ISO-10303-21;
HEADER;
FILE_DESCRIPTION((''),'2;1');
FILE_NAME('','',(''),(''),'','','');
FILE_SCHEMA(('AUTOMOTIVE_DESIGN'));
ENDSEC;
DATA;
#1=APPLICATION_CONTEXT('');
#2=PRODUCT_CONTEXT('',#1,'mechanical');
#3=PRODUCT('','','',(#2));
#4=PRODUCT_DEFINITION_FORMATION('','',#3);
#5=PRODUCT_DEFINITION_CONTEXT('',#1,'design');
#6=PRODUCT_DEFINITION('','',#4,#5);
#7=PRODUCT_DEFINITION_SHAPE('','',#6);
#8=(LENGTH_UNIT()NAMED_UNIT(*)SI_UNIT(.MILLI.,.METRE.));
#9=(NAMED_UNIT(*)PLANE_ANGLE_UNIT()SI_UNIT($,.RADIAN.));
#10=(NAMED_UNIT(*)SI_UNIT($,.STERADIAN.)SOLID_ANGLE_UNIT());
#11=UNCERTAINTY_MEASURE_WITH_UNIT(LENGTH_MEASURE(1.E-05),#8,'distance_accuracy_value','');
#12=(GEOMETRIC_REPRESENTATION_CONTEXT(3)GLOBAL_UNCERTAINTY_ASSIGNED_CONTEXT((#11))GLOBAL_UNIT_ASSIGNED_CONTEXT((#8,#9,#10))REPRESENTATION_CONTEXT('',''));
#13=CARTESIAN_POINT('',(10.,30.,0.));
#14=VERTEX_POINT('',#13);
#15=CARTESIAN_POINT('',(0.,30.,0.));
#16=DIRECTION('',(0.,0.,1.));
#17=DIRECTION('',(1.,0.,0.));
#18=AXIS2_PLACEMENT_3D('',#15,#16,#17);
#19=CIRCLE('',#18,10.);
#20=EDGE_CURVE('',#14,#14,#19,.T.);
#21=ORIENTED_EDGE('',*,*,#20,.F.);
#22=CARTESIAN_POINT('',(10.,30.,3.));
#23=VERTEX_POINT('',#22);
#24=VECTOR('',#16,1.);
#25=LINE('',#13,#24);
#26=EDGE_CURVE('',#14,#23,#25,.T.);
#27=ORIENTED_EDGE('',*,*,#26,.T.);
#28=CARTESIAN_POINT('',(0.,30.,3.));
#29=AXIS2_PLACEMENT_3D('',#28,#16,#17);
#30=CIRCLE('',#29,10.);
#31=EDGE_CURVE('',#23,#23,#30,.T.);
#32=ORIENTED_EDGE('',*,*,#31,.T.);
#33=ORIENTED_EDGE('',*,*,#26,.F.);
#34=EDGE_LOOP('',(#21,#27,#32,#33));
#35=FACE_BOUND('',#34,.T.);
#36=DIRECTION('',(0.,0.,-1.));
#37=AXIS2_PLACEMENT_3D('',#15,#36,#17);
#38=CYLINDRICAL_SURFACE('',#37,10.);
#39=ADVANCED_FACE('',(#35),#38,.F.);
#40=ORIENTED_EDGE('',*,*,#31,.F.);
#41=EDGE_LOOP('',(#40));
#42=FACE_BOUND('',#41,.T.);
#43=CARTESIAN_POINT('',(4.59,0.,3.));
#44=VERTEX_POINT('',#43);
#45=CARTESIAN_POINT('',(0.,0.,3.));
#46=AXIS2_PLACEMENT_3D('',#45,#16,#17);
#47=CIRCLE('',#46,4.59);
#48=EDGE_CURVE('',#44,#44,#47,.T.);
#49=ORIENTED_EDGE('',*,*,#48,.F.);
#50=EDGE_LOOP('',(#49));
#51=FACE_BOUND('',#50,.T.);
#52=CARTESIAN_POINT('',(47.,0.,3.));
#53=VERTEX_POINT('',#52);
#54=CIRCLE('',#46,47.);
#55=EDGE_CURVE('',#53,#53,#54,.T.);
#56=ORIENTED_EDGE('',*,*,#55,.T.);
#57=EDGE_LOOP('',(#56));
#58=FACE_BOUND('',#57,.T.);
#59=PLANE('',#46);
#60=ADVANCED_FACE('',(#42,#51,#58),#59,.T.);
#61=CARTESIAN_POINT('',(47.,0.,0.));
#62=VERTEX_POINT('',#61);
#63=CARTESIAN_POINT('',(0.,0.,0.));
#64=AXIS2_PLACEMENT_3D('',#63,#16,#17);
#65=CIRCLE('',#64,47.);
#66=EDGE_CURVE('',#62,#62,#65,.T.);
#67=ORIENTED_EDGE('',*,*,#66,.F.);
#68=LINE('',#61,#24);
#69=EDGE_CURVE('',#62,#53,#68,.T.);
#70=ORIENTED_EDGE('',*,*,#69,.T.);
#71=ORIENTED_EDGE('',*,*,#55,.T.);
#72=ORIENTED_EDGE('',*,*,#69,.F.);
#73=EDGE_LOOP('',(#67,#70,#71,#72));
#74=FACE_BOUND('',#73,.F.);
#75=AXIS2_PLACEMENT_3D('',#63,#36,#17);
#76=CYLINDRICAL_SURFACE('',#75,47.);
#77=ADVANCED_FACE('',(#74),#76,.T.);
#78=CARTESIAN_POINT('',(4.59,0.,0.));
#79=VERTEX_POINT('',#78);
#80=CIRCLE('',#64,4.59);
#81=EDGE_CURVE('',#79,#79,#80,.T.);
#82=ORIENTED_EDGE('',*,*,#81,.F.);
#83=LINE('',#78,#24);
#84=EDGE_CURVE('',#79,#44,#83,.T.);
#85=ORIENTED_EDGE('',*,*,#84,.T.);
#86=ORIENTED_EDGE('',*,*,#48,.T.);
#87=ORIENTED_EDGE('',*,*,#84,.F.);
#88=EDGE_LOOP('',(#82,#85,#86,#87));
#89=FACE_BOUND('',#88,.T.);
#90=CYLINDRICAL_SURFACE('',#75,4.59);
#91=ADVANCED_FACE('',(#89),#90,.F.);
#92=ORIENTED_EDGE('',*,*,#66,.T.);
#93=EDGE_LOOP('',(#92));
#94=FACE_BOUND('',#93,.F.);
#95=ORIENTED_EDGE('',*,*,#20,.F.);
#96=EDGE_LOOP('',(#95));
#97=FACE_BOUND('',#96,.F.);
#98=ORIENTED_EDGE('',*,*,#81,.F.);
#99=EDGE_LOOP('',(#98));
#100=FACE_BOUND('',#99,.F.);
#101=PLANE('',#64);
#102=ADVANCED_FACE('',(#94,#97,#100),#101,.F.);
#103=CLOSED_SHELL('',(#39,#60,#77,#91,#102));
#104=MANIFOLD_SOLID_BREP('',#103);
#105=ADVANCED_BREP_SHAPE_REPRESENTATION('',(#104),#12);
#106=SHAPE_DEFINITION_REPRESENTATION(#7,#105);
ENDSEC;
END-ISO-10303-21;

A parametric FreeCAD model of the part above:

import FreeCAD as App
import Part
import Sketcher
Q = App.Units.Quantity

doc = App.newDocument("Part")
params = doc.addObject("Spreadsheet::Sheet", "Params")
for row, (alias, value) in enumerate([
    ("sketch1_diameter", "94 mm"),
    ("sketch1_diameter2", "20 mm"),
    ("sketch1_diameter3", "9.18 mm"),
    ("pad1_length", "3 mm"),
], start=1):
    params.set(f"A{row}", alias)
    params.set(f"B{row}", "=" + value)
    params.setAlias(f"B{row}", alias)

body = doc.addObject("PartDesign::Body", "Body")

sketch1 = body.newObject("Sketcher::SketchObject", "Sketch")
sketch1.AttachmentSupport = (doc.getObject("XY_Plane"), [""])
sketch1.MapMode = "FlatFace"
sketch1.addGeometry(Part.Circle(App.Vector(0, 0, 0), App.Vector(0, 0, 1), 47), False)
sketch1.addGeometry(Part.Circle(App.Vector(0, 0, 0), App.Vector(0, 0, 1), 4.59), False)
sketch1.addGeometry(Part.Circle(App.Vector(0, 30, 0), App.Vector(0, 0, 1), 10), False)
sketch1.addConstraint(Sketcher.Constraint("Coincident", 0, 3, -1, 1))
sketch1.addConstraint(Sketcher.Constraint("Coincident", 1, 3, -1, 1))
sketch1.addConstraint(Sketcher.Constraint("PointOnObject", 2, 3, -2))
sketch1.addConstraint(Sketcher.Constraint("Diameter", 0, Q("94 mm")))
sketch1.addConstraint(Sketcher.Constraint("Diameter", 2, Q("20 mm")))
sketch1.addConstraint(Sketcher.Constraint("Diameter", 1, Q("9.18 mm")))
sketch1.addConstraint(Sketcher.Constraint("DistanceY", -1, 1, 2, 3, Q("30 mm")))
sketch1.setExpression("Constraints[3]", "Params.sketch1_diameter")
sketch1.setExpression("Constraints[4]", "Params.sketch1_diameter2")
sketch1.setExpression("Constraints[5]", "Params.sketch1_diameter3")
pad1 = body.newObject("PartDesign::Pad", "Pad")
pad1.Profile = sketch1
pad1.setExpression("Length", "Params.pad1_length")

doc.recompute()
